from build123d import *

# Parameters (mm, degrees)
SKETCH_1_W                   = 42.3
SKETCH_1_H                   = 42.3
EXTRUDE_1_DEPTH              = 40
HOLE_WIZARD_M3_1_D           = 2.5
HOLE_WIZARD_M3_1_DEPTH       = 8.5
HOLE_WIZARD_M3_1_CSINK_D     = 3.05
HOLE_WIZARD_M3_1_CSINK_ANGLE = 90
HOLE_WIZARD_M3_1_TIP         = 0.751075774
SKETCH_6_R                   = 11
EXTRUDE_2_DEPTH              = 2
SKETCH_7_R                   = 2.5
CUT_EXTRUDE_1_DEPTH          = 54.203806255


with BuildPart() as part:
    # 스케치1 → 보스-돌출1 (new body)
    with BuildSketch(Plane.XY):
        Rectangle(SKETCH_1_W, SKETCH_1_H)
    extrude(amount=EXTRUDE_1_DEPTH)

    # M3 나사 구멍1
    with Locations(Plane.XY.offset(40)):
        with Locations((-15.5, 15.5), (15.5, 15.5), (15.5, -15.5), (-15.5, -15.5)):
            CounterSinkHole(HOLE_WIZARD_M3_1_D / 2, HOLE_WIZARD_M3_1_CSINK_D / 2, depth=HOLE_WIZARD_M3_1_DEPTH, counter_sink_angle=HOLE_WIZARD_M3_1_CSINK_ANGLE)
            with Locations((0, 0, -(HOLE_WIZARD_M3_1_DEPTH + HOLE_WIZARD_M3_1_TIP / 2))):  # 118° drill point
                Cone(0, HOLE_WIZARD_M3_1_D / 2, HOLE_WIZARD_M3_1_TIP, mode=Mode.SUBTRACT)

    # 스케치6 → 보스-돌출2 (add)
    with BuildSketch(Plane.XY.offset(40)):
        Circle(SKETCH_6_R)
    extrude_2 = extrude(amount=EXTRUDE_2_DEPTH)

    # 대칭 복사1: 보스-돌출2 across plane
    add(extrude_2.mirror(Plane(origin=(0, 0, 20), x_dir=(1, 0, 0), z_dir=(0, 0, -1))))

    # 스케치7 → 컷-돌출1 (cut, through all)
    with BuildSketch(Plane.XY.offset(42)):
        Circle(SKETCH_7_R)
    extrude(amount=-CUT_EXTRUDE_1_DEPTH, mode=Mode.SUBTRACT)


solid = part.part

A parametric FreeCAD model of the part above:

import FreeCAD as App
import Part
import Sketcher

V = App.Vector

doc = App.newDocument("Part")
body = doc.addObject("PartDesign::Body", "Body")

sketch1 = body.newObject("Sketcher::SketchObject", "Sketch")
sketch1.AttachmentSupport = (doc.getObject("XY_Plane"), [""])
sketch1.MapMode = "FlatFace"
sketch1.addGeometry([
    Part.LineSegment(V(-21, 21, 0), V(-21, -21, 0)),
    Part.LineSegment(V(-21, -21, 0), V(21, -21, 0)),
    Part.LineSegment(V(21, -21, 0), V(21, 21, 0)),
    Part.LineSegment(V(21, 21, 0), V(-21, 21, 0)),
], False)
sketch1.addConstraint([
    Sketcher.Constraint("Coincident", 0, 2, 1, 1),
    Sketcher.Constraint("Coincident", 1, 2, 2, 1),
    Sketcher.Constraint("Coincident", 2, 2, 3, 1),
    Sketcher.Constraint("Coincident", 3, 2, 0, 1),
    Sketcher.Constraint("Vertical", 0),
    Sketcher.Constraint("Horizontal", 1),
    Sketcher.Constraint("Vertical", 2),
    Sketcher.Constraint("Horizontal", 3),
    Sketcher.Constraint("Symmetric", 0, 2, 2, 2, -1, 1),
    Sketcher.Constraint("Equal", 3, 0),
    Sketcher.Constraint("DistanceX", 1, 1, 1, 2, 42.3),
])
pad1 = body.newObject("PartDesign::Pad", "Pad")
pad1.Profile = sketch1
pad1.Length = 40

sketch2 = body.newObject("Sketcher::SketchObject", "Sketch001")
sketch2.AttachmentSupport = (doc.getObject("XY_Plane"), [""])
sketch2.MapMode = "FlatFace"
sketch2.AttachmentOffset = App.Placement(V(0, 0, 40), App.Rotation())
sketch2.addGeometry([
    Part.Circle(V(-15.5, 15.5, 0), V(0, 0, 1), 1.2),
    Part.Circle(V(15.5, 15.5, 0), V(0, 0, 1), 1.2),
    Part.Circle(V(15.5, -15.5, 0), V(0, 0, 1), 1.2),
    Part.Circle(V(-15.5, -15.5, 0), V(0, 0, 1), 1.2),
], False)
sketch2.addConstraint([
    Sketcher.Constraint("Equal", 0, 1),
    Sketcher.Constraint("Equal", 1, 2),
    Sketcher.Constraint("Equal", 2, 3),
    Sketcher.Constraint("Symmetric", 0, 3, 2, 3, -1, 1),
    Sketcher.Constraint("Symmetric", 1, 3, 3, 3, -1, 1),
    Sketcher.Constraint("Symmetric", 0, 3, 1, 3, -2),
    Sketcher.Constraint("Diameter", 0, 2.5),
    Sketcher.Constraint("DistanceX", 0, 3, 1, 3, 31.0),
    Sketcher.Constraint("DistanceY", 2, 3, 1, 3, 31.0),
])
doc.recompute()
hole = body.newObject("PartDesign::Hole", "Hole")
hole.Profile = sketch2
hole.ThreadType = "None"
hole.Diameter = 2.5
hole.DepthType = "Dimension"
hole.Depth = 8.5
hole.DrillPoint = "Angled"
hole.DrillPointAngle = 118
hole.HoleCutType = "Countersink"
hole.HoleCutDiameter = 3.05
hole.HoleCutCountersinkAngle = 90

sketch3 = body.newObject("Sketcher::SketchObject", "Sketch002")
sketch3.AttachmentSupport = (doc.getObject("XY_Plane"), [""])
sketch3.MapMode = "FlatFace"
sketch3.AttachmentOffset = App.Placement(V(0, 0, 40), App.Rotation())
sketch3.addGeometry(Part.Circle(V(0, 0, 0), V(0, 0, 1), 11), False)
sketch3.addConstraint([
    Sketcher.Constraint("Coincident", 0, 3, -1, 1),
    Sketcher.Constraint("Diameter", 0, 22.0),
])
pad2 = body.newObject("PartDesign::Pad", "Pad001")
pad2.Profile = sketch3
pad2.Length = 2
doc.recompute()

datumplane = body.newObject("PartDesign::Plane", "DatumPlane")
datumplane.AttachmentSupport = (doc.getObject("XY_Plane"), [""])
datumplane.MapMode = "FlatFace"
datumplane.AttachmentOffset = App.Placement(V(0, 0, 20), App.Rotation())
mirrored = body.newObject("PartDesign::Mirrored", "Mirrored")
mirrored.Originals = [pad2]
mirrored.MirrorPlane = (datumplane, [""])
body.Tip = mirrored

sketch4 = body.newObject("Sketcher::SketchObject", "Sketch003")
sketch4.AttachmentSupport = (doc.getObject("XY_Plane"), [""])
sketch4.MapMode = "FlatFace"
sketch4.AttachmentOffset = App.Placement(V(0, 0, 42), App.Rotation())
sketch4.addGeometry(Part.Circle(V(0, 0, 0), V(0, 0, 1), 2.5), False)
sketch4.addConstraint([
    Sketcher.Constraint("Coincident", 0, 3, -1, 1),
    Sketcher.Constraint("Diameter", 0, 5.0),
])
pocket1 = body.newObject("PartDesign::Pocket", "Pocket")
pocket1.Profile = sketch4
pocket1.Type = "ThroughAll"

doc.recompute()
